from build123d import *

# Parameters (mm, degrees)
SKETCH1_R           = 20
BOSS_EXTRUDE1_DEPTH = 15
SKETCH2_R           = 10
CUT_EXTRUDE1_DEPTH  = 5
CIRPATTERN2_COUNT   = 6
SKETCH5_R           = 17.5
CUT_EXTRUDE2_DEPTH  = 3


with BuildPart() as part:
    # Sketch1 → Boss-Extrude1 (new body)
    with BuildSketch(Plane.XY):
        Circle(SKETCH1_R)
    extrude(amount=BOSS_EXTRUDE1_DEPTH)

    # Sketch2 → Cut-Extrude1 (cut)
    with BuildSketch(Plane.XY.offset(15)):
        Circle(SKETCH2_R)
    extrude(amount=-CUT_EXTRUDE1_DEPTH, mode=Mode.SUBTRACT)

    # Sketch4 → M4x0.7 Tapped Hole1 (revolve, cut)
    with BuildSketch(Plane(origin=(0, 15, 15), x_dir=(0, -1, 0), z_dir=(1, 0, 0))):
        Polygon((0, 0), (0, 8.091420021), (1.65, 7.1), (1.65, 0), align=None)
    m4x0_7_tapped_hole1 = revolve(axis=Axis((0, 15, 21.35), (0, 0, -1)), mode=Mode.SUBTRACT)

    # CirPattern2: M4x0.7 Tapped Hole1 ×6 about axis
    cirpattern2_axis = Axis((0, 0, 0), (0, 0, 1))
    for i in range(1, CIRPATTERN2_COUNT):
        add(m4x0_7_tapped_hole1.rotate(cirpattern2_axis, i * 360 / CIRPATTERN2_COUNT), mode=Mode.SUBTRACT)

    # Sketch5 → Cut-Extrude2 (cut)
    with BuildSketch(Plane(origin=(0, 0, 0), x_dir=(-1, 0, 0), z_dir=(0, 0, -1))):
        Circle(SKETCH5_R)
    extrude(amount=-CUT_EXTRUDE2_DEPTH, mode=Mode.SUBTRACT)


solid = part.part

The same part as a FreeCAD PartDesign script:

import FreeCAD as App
import Part
import Sketcher

V = App.Vector
Q = App.Units.Quantity


def add_polygon(sketch, points):
    """Adds a closed chain of lines whose ends are joined by coincident constraints."""
    first, n = sketch.GeometryCount, len(points)
    for a, b in zip(points, points[1:] + points[:1]):
        sketch.addGeometry(Part.LineSegment(App.Vector(*a, 0), App.Vector(*b, 0)), False)
    for i in range(n):
        sketch.addConstraint(Sketcher.Constraint("Coincident", first + i, 2, first + (i + 1) % n, 1))

doc = App.newDocument("Part")
body = doc.addObject("PartDesign::Body", "Body")

sketch1 = body.newObject("Sketcher::SketchObject", "Sketch")
sketch1.AttachmentSupport = (doc.getObject("XY_Plane"), [""])
sketch1.MapMode = "FlatFace"
sketch1.addGeometry(Part.Circle(V(0, 0, 0), V(0, 0, 1), 20), False)
sketch1.addConstraint([
    Sketcher.Constraint("Coincident", 0, 3, -1, 1),
    Sketcher.Constraint("Diameter", 0, 40.0),
])
pad1 = body.newObject("PartDesign::Pad", "Pad")
pad1.Profile = sketch1
pad1.Length = 15

sketch2 = body.newObject("Sketcher::SketchObject", "Sketch001")
sketch2.AttachmentSupport = (doc.getObject("XY_Plane"), [""])
sketch2.MapMode = "FlatFace"
sketch2.AttachmentOffset = App.Placement(V(0, 0, 15), App.Rotation())
sketch2.addGeometry(Part.Circle(V(0, 0, 0), V(0, 0, 1), 10), False)
sketch2.addConstraint([
    Sketcher.Constraint("Coincident", 0, 3, -1, 1),
    Sketcher.Constraint("Diameter", 0, 20.0),
])
pocket1 = body.newObject("PartDesign::Pocket", "Pocket")
pocket1.Profile = sketch2
pocket1.Length = 5

sketch3 = body.newObject("Sketcher::SketchObject", "Sketch002")
sketch3.AttachmentSupport = (doc.getObject("YZ_Plane"), [""])
sketch3.MapMode = "FlatFace"
add_polygon(sketch3, [(15, 6.9), (15, 15), (13.3, 15), (13.3, 7.9)])
sketch3.addGeometry(Part.LineSegment(V(15, 15, 0), V(15, 6.9, 0)), True)
sketch3.addConstraint([
    Sketcher.Constraint("Vertical", 0),
    Sketcher.Constraint("Horizontal", 1),
    Sketcher.Constraint("Vertical", 2),
    Sketcher.Constraint("Vertical", 4),
    Sketcher.Constraint("Coincident", 4, 1, 0, 2),
    Sketcher.Constraint("Equal", 0, 4),
    Sketcher.Constraint("Angle", 3, Q("-31 deg")),
    Sketcher.Constraint("DistanceY", 2, 2, 2, 1, 7.1),
    Sketcher.Constraint("DistanceX", -1, 1, 0, 2, 15.0),
    Sketcher.Constraint("DistanceY", -1, 1, 0, 2, 15.0),
    Sketcher.Constraint("DistanceX", 1, 2, 1, 1, 1.65),
])
groove = body.newObject("PartDesign::Groove", "Groove")
groove.Profile = sketch3
groove.ReferenceAxis = (sketch3, ["Axis0"])
groove.Angle = 360
doc.recompute()

polarpattern = body.newObject("PartDesign::PolarPattern", "PolarPattern")
polarpattern.Originals = [groove]
polarpattern.Axis = (doc.getObject("Z_Axis"), [""])
polarpattern.Angle = 360
polarpattern.Occurrences = 6
body.Tip = polarpattern

sketch4 = body.newObject("Sketcher::SketchObject", "Sketch003")
sketch4.AttachmentSupport = (doc.getObject("XY_Plane"), [""])
sketch4.MapMode = "FlatFace"
sketch4.addGeometry(Part.Circle(V(0, 0, 0), V(0, 0, 1), 18), False)
sketch4.addConstraint([
    Sketcher.Constraint("Coincident", 0, 3, -1, 1),
    Sketcher.Constraint("Diameter", 0, 35.0),
])
pocket2 = body.newObject("PartDesign::Pocket", "Pocket001")
pocket2.Profile = sketch4
pocket2.Length = 3
pocket2.Reversed = True

doc.recompute()
